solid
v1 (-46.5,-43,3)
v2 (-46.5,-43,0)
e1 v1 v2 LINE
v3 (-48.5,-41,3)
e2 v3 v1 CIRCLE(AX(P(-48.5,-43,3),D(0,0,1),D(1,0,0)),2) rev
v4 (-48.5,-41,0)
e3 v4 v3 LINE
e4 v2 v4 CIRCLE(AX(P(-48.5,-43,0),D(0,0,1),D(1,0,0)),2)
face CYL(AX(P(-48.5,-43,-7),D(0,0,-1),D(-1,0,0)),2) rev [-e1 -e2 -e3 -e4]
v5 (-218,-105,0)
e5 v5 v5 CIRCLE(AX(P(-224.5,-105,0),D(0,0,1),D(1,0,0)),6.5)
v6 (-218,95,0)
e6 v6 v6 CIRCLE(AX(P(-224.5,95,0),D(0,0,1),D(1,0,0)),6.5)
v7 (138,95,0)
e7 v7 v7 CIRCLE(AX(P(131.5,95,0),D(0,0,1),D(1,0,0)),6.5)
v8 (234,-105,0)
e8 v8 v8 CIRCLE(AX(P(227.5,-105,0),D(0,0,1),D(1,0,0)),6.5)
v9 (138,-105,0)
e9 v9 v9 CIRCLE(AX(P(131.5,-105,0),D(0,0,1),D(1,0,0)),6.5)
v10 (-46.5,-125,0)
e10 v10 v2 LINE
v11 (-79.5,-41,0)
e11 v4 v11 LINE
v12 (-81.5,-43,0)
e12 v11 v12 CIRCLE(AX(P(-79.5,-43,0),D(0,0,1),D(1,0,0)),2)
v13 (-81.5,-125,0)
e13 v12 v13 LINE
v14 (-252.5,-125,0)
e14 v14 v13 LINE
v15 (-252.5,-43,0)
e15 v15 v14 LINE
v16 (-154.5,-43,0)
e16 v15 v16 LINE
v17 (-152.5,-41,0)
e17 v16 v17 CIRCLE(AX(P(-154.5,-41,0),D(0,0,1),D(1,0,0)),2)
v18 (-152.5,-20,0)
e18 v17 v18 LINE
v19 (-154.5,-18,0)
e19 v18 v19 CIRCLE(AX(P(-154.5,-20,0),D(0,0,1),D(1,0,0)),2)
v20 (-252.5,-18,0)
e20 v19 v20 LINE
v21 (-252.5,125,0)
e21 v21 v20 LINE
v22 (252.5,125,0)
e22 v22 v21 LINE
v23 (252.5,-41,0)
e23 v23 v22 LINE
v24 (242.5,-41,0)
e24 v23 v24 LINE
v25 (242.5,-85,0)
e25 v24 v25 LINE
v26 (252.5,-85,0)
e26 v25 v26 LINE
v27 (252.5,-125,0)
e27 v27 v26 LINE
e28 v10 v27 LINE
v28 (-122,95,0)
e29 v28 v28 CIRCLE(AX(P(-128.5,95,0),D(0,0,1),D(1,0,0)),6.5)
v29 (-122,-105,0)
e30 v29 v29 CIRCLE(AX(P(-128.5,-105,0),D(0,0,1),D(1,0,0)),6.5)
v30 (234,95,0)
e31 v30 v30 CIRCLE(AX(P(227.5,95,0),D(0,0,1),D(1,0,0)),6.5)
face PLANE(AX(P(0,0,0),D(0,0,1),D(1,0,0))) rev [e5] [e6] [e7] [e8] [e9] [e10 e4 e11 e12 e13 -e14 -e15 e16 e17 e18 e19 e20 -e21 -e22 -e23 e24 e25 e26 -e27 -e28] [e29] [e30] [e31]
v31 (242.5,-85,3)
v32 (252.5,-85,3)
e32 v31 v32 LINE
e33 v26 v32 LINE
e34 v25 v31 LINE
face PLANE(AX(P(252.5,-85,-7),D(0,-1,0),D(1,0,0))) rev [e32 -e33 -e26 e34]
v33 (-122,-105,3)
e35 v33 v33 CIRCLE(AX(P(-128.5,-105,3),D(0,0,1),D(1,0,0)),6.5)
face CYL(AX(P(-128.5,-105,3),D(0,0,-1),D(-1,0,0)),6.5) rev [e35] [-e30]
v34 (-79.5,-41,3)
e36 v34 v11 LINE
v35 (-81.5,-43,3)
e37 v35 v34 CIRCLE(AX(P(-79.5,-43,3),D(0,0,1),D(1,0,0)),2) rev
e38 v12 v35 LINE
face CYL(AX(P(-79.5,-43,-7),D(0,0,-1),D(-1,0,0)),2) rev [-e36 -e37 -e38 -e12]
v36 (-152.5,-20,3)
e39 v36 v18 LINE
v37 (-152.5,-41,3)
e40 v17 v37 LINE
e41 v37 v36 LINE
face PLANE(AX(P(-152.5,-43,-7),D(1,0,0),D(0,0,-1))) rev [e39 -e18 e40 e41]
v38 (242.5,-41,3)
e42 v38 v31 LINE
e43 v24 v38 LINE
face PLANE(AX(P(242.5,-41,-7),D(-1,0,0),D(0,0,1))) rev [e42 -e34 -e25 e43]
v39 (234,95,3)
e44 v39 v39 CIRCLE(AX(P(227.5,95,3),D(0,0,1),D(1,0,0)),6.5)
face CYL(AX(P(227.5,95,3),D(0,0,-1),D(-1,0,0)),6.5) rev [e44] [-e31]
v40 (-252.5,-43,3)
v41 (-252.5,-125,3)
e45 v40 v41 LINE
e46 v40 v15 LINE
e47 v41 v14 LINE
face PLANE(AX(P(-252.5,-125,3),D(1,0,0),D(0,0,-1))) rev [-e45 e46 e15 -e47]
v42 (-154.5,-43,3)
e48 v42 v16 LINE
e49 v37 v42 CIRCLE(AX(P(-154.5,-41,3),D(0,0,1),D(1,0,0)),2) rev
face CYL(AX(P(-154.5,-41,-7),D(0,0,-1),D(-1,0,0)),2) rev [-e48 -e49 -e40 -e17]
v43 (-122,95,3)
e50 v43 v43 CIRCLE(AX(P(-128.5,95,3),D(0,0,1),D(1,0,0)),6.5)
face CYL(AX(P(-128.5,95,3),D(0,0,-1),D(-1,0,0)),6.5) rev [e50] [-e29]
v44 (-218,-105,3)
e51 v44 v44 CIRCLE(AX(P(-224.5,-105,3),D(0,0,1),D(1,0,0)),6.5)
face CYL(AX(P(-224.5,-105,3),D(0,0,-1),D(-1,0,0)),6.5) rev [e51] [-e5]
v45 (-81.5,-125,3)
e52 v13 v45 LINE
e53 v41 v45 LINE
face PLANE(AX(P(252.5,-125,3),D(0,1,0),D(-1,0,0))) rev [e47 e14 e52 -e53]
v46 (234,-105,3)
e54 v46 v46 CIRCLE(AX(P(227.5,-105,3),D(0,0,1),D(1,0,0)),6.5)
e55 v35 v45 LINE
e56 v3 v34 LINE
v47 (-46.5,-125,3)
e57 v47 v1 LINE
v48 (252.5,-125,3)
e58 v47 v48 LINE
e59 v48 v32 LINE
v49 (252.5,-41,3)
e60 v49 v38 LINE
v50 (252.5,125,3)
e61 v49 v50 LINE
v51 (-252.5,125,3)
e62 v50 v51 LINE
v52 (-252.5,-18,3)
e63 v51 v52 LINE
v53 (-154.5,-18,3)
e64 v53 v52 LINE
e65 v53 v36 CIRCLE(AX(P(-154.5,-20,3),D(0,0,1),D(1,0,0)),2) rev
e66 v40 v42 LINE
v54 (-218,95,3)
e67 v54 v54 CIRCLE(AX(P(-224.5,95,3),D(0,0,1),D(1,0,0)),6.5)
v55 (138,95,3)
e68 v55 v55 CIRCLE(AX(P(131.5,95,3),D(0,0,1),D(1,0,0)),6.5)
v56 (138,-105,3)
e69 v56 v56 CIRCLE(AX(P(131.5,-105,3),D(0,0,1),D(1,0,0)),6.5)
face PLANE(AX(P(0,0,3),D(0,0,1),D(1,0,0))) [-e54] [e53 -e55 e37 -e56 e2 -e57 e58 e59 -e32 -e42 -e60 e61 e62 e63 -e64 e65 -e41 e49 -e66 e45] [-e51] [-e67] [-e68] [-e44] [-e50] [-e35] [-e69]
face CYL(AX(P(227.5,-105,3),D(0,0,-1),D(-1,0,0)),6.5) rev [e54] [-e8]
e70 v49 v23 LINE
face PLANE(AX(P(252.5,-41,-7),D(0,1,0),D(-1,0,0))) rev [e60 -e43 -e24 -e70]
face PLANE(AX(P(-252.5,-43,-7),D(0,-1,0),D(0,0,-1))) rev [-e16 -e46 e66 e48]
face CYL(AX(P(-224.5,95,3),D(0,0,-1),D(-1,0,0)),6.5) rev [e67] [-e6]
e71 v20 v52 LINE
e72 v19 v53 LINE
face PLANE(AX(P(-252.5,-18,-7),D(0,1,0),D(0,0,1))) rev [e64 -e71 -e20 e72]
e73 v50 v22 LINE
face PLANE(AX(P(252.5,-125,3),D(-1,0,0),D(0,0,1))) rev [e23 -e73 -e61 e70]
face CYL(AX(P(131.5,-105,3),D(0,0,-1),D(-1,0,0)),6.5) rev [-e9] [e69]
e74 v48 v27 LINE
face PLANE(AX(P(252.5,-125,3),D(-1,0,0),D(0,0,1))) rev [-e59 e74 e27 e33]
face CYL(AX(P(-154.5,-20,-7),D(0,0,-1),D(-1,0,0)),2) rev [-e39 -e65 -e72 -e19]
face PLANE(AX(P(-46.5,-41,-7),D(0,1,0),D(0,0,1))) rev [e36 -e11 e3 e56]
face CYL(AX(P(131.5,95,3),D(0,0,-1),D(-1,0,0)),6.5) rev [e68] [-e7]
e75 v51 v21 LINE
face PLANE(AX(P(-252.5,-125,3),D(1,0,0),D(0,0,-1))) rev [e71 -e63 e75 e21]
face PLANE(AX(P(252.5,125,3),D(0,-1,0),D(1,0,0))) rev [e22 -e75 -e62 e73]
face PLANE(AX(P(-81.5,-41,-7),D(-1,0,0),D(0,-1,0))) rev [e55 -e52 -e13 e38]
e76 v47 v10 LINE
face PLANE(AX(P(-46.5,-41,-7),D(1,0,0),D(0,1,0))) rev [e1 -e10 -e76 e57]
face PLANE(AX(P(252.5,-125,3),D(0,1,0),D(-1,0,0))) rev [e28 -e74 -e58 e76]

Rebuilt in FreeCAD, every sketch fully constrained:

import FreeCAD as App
import Part
import Sketcher


def edges_at(feature, points):
    """Names of the edges that pass closest to the given points."""
    edges = feature.Shape.Edges
    near = lambda p: min(range(len(edges)), key=lambda i: edges[i].distToShape(Part.Vertex(*p))[0])
    return sorted({f"Edge{near(p) + 1}" for p in points})


def add_polygon(sketch, points):
    """Adds a closed chain of lines whose ends are joined by coincident constraints."""
    first, n = sketch.GeometryCount, len(points)
    for a, b in zip(points, points[1:] + points[:1]):
        sketch.addGeometry(Part.LineSegment(App.Vector(*a, 0), App.Vector(*b, 0)), False)
    for i in range(n):
        sketch.addConstraint(Sketcher.Constraint("Coincident", first + i, 2, first + (i + 1) % n, 1))

doc = App.newDocument("Part")
body = doc.addObject("PartDesign::Body", "Body")

# Sketch on XY plane
sketch1 = doc.addObject("Sketcher::SketchObject", "Sketch")
body.addObject(sketch1)
sketch1.AttachmentSupport = (doc.XY_Plane, [""])
sketch1.MapMode = "FlatFace"
add_polygon(sketch1, [(-252, 125), (-252, -125), (252, -125), (252, 125)])  # lines 0-3
sketch1.addGeometry(Part.Circle(App.Vector(-224, -105, 0), App.Vector(0, 0, 1), 6), False)  # 4
sketch1.addGeometry(Part.Circle(App.Vector(-128, -105, 0), App.Vector(0, 0, 1), 6), False)  # 5
sketch1.addGeometry(Part.Circle(App.Vector(132, -105, 0), App.Vector(0, 0, 1), 6), False)  # 6
sketch1.addGeometry(Part.Circle(App.Vector(228, -105, 0), App.Vector(0, 0, 1), 6), False)  # 7
sketch1.addGeometry(Part.Circle(App.Vector(-224, 95, 0), App.Vector(0, 0, 1), 6), False)  # 8
sketch1.addGeometry(Part.Circle(App.Vector(-128, 95, 0), App.Vector(0, 0, 1), 6), False)  # 9
sketch1.addGeometry(Part.Circle(App.Vector(132, 95, 0), App.Vector(0, 0, 1), 6), False)  # 10
sketch1.addGeometry(Part.Circle(App.Vector(228, 95, 0), App.Vector(0, 0, 1), 6), False)  # 11
sketch1.addConstraint([
    Sketcher.Constraint("Vertical", 0),
    Sketcher.Constraint("Horizontal", 1),
    Sketcher.Constraint("Vertical", 2),
    Sketcher.Constraint("Horizontal", 3),
    Sketcher.Constraint("Equal", 4, 5),
    Sketcher.Constraint("Equal", 5, 6),
    Sketcher.Constraint("Equal", 6, 7),
    Sketcher.Constraint("Equal", 7, 8),
    Sketcher.Constraint("Equal", 8, 9),
    Sketcher.Constraint("Equal", 9, 10),
    Sketcher.Constraint("Equal", 10, 11),
    Sketcher.Constraint("Symmetric", 0, 2, 2, 2, -1, 1),
    Sketcher.Constraint("Horizontal", 4, 3, 5, 3),
    Sketcher.Constraint("Horizontal", 5, 3, 6, 3),
    Sketcher.Constraint("Horizontal", 6, 3, 7, 3),
    Sketcher.Constraint("Horizontal", 8, 3, 9, 3),
    Sketcher.Constraint("Horizontal", 9, 3, 10, 3),
    Sketcher.Constraint("Horizontal", 10, 3, 11, 3),
    Sketcher.Constraint("Vertical", 4, 3, 8, 3),
    Sketcher.Constraint("Vertical", 5, 3, 9, 3),
    Sketcher.Constraint("Vertical", 6, 3, 10, 3),
    Sketcher.Constraint("Vertical", 7, 3, 11, 3),
    Sketcher.Constraint("Diameter", 4, 13.0),
    Sketcher.Constraint("DistanceX", 1, 1, 1, 2, 505.0),
    Sketcher.Constraint("DistanceY", 0, 2, 0, 1, 250.0),
    Sketcher.Constraint("DistanceY", 4, 3, -1, 1, 105.0),
    Sketcher.Constraint("DistanceY", -1, 1, 8, 3, 95.0),
    Sketcher.Constraint("DistanceX", 4, 3, 5, 3, 96.0),
    Sketcher.Constraint("DistanceX", 5, 3, 6, 3, 260.0),
    Sketcher.Constraint("DistanceX", 6, 3, 7, 3, 96.0),
    Sketcher.Constraint("DistanceX", 0, 2, 4, 3, 28.0),
])
pad1 = doc.addObject("PartDesign::Pad", "Pad")
body.addObject(pad1)
pad1.Profile = sketch1
pad1.Length = 3

# Sketch on XY plane
sketch2 = doc.addObject("Sketcher::SketchObject", "Sketch001")
body.addObject(sketch2)
sketch2.AttachmentSupport = (doc.XY_Plane, [""])
sketch2.MapMode = "FlatFace"
sketch2.AttachmentOffset = App.Placement(App.Vector(0, 0, 3), App.Rotation())
add_polygon(sketch2, [(-252, -18), (-252, -43), (-152, -43), (-152, -18)])  # lines 0-3
add_polygon(sketch2, [(-82, -41), (-82, -125), (-46, -125), (-46, -41)])  # lines 4-7
add_polygon(sketch2, [(242, -41), (242, -85), (252, -85), (252, -41)])  # lines 8-11
sketch2.addConstraint([
    Sketcher.Constraint("Vertical", 0),
    Sketcher.Constraint("Horizontal", 1),
    Sketcher.Constraint("Vertical", 2),
    Sketcher.Constraint("Horizontal", 3),
    Sketcher.Constraint("Vertical", 4),
    Sketcher.Constraint("Horizontal", 5),
    Sketcher.Constraint("Vertical", 6),
    Sketcher.Constraint("Horizontal", 7),
    Sketcher.Constraint("Vertical", 8),
    Sketcher.Constraint("Horizontal", 9),
    Sketcher.Constraint("Vertical", 10),
    Sketcher.Constraint("Horizontal", 11),
    Sketcher.Constraint("Horizontal", 7, 2, 10, 2),
    Sketcher.Constraint("DistanceX", 1, 1, 1, 2, 100.0),
    Sketcher.Constraint("DistanceX", 5, 1, 5, 2, 35.0),
    Sketcher.Constraint("DistanceX", 9, 1, 9, 2, 10.0),
    Sketcher.Constraint("DistanceY", 0, 2, 0, 1, 25.0),
    Sketcher.Constraint("DistanceY", 4, 2, 4, 1, 84.0),
    Sketcher.Constraint("DistanceY", 8, 2, 8, 1, 44.0),
    Sketcher.Constraint("DistanceY", 0, 2, -1, 1, 43.0),
    Sketcher.Constraint("DistanceY", 4, 2, -1, 1, 125.0),
    Sketcher.Constraint("DistanceX", 1, 2, 4, 2, 71.0),
    Sketcher.Constraint("DistanceX", 5, 2, 8, 2, 289.0),
    Sketcher.Constraint("DistanceX", 0, 2, -1, 1, 252.5),
])
pocket1 = doc.addObject("PartDesign::Pocket", "Pocket")
body.addObject(pocket1)
pocket1.Profile = sketch2
pocket1.Length = 10
doc.recompute()

fillet = doc.addObject("PartDesign::Fillet", "Fillet")
body.addObject(fillet)
fillet.Base = (pocket1, edges_at(pocket1, [
    (-152.5, -18, 1.5),
    (-152.5, -43, 1.5),
    (-81.5, -41, 1.5),
    (-46.5, -41, 1.5),
]))
fillet.Radius = 2

doc.recompute()
